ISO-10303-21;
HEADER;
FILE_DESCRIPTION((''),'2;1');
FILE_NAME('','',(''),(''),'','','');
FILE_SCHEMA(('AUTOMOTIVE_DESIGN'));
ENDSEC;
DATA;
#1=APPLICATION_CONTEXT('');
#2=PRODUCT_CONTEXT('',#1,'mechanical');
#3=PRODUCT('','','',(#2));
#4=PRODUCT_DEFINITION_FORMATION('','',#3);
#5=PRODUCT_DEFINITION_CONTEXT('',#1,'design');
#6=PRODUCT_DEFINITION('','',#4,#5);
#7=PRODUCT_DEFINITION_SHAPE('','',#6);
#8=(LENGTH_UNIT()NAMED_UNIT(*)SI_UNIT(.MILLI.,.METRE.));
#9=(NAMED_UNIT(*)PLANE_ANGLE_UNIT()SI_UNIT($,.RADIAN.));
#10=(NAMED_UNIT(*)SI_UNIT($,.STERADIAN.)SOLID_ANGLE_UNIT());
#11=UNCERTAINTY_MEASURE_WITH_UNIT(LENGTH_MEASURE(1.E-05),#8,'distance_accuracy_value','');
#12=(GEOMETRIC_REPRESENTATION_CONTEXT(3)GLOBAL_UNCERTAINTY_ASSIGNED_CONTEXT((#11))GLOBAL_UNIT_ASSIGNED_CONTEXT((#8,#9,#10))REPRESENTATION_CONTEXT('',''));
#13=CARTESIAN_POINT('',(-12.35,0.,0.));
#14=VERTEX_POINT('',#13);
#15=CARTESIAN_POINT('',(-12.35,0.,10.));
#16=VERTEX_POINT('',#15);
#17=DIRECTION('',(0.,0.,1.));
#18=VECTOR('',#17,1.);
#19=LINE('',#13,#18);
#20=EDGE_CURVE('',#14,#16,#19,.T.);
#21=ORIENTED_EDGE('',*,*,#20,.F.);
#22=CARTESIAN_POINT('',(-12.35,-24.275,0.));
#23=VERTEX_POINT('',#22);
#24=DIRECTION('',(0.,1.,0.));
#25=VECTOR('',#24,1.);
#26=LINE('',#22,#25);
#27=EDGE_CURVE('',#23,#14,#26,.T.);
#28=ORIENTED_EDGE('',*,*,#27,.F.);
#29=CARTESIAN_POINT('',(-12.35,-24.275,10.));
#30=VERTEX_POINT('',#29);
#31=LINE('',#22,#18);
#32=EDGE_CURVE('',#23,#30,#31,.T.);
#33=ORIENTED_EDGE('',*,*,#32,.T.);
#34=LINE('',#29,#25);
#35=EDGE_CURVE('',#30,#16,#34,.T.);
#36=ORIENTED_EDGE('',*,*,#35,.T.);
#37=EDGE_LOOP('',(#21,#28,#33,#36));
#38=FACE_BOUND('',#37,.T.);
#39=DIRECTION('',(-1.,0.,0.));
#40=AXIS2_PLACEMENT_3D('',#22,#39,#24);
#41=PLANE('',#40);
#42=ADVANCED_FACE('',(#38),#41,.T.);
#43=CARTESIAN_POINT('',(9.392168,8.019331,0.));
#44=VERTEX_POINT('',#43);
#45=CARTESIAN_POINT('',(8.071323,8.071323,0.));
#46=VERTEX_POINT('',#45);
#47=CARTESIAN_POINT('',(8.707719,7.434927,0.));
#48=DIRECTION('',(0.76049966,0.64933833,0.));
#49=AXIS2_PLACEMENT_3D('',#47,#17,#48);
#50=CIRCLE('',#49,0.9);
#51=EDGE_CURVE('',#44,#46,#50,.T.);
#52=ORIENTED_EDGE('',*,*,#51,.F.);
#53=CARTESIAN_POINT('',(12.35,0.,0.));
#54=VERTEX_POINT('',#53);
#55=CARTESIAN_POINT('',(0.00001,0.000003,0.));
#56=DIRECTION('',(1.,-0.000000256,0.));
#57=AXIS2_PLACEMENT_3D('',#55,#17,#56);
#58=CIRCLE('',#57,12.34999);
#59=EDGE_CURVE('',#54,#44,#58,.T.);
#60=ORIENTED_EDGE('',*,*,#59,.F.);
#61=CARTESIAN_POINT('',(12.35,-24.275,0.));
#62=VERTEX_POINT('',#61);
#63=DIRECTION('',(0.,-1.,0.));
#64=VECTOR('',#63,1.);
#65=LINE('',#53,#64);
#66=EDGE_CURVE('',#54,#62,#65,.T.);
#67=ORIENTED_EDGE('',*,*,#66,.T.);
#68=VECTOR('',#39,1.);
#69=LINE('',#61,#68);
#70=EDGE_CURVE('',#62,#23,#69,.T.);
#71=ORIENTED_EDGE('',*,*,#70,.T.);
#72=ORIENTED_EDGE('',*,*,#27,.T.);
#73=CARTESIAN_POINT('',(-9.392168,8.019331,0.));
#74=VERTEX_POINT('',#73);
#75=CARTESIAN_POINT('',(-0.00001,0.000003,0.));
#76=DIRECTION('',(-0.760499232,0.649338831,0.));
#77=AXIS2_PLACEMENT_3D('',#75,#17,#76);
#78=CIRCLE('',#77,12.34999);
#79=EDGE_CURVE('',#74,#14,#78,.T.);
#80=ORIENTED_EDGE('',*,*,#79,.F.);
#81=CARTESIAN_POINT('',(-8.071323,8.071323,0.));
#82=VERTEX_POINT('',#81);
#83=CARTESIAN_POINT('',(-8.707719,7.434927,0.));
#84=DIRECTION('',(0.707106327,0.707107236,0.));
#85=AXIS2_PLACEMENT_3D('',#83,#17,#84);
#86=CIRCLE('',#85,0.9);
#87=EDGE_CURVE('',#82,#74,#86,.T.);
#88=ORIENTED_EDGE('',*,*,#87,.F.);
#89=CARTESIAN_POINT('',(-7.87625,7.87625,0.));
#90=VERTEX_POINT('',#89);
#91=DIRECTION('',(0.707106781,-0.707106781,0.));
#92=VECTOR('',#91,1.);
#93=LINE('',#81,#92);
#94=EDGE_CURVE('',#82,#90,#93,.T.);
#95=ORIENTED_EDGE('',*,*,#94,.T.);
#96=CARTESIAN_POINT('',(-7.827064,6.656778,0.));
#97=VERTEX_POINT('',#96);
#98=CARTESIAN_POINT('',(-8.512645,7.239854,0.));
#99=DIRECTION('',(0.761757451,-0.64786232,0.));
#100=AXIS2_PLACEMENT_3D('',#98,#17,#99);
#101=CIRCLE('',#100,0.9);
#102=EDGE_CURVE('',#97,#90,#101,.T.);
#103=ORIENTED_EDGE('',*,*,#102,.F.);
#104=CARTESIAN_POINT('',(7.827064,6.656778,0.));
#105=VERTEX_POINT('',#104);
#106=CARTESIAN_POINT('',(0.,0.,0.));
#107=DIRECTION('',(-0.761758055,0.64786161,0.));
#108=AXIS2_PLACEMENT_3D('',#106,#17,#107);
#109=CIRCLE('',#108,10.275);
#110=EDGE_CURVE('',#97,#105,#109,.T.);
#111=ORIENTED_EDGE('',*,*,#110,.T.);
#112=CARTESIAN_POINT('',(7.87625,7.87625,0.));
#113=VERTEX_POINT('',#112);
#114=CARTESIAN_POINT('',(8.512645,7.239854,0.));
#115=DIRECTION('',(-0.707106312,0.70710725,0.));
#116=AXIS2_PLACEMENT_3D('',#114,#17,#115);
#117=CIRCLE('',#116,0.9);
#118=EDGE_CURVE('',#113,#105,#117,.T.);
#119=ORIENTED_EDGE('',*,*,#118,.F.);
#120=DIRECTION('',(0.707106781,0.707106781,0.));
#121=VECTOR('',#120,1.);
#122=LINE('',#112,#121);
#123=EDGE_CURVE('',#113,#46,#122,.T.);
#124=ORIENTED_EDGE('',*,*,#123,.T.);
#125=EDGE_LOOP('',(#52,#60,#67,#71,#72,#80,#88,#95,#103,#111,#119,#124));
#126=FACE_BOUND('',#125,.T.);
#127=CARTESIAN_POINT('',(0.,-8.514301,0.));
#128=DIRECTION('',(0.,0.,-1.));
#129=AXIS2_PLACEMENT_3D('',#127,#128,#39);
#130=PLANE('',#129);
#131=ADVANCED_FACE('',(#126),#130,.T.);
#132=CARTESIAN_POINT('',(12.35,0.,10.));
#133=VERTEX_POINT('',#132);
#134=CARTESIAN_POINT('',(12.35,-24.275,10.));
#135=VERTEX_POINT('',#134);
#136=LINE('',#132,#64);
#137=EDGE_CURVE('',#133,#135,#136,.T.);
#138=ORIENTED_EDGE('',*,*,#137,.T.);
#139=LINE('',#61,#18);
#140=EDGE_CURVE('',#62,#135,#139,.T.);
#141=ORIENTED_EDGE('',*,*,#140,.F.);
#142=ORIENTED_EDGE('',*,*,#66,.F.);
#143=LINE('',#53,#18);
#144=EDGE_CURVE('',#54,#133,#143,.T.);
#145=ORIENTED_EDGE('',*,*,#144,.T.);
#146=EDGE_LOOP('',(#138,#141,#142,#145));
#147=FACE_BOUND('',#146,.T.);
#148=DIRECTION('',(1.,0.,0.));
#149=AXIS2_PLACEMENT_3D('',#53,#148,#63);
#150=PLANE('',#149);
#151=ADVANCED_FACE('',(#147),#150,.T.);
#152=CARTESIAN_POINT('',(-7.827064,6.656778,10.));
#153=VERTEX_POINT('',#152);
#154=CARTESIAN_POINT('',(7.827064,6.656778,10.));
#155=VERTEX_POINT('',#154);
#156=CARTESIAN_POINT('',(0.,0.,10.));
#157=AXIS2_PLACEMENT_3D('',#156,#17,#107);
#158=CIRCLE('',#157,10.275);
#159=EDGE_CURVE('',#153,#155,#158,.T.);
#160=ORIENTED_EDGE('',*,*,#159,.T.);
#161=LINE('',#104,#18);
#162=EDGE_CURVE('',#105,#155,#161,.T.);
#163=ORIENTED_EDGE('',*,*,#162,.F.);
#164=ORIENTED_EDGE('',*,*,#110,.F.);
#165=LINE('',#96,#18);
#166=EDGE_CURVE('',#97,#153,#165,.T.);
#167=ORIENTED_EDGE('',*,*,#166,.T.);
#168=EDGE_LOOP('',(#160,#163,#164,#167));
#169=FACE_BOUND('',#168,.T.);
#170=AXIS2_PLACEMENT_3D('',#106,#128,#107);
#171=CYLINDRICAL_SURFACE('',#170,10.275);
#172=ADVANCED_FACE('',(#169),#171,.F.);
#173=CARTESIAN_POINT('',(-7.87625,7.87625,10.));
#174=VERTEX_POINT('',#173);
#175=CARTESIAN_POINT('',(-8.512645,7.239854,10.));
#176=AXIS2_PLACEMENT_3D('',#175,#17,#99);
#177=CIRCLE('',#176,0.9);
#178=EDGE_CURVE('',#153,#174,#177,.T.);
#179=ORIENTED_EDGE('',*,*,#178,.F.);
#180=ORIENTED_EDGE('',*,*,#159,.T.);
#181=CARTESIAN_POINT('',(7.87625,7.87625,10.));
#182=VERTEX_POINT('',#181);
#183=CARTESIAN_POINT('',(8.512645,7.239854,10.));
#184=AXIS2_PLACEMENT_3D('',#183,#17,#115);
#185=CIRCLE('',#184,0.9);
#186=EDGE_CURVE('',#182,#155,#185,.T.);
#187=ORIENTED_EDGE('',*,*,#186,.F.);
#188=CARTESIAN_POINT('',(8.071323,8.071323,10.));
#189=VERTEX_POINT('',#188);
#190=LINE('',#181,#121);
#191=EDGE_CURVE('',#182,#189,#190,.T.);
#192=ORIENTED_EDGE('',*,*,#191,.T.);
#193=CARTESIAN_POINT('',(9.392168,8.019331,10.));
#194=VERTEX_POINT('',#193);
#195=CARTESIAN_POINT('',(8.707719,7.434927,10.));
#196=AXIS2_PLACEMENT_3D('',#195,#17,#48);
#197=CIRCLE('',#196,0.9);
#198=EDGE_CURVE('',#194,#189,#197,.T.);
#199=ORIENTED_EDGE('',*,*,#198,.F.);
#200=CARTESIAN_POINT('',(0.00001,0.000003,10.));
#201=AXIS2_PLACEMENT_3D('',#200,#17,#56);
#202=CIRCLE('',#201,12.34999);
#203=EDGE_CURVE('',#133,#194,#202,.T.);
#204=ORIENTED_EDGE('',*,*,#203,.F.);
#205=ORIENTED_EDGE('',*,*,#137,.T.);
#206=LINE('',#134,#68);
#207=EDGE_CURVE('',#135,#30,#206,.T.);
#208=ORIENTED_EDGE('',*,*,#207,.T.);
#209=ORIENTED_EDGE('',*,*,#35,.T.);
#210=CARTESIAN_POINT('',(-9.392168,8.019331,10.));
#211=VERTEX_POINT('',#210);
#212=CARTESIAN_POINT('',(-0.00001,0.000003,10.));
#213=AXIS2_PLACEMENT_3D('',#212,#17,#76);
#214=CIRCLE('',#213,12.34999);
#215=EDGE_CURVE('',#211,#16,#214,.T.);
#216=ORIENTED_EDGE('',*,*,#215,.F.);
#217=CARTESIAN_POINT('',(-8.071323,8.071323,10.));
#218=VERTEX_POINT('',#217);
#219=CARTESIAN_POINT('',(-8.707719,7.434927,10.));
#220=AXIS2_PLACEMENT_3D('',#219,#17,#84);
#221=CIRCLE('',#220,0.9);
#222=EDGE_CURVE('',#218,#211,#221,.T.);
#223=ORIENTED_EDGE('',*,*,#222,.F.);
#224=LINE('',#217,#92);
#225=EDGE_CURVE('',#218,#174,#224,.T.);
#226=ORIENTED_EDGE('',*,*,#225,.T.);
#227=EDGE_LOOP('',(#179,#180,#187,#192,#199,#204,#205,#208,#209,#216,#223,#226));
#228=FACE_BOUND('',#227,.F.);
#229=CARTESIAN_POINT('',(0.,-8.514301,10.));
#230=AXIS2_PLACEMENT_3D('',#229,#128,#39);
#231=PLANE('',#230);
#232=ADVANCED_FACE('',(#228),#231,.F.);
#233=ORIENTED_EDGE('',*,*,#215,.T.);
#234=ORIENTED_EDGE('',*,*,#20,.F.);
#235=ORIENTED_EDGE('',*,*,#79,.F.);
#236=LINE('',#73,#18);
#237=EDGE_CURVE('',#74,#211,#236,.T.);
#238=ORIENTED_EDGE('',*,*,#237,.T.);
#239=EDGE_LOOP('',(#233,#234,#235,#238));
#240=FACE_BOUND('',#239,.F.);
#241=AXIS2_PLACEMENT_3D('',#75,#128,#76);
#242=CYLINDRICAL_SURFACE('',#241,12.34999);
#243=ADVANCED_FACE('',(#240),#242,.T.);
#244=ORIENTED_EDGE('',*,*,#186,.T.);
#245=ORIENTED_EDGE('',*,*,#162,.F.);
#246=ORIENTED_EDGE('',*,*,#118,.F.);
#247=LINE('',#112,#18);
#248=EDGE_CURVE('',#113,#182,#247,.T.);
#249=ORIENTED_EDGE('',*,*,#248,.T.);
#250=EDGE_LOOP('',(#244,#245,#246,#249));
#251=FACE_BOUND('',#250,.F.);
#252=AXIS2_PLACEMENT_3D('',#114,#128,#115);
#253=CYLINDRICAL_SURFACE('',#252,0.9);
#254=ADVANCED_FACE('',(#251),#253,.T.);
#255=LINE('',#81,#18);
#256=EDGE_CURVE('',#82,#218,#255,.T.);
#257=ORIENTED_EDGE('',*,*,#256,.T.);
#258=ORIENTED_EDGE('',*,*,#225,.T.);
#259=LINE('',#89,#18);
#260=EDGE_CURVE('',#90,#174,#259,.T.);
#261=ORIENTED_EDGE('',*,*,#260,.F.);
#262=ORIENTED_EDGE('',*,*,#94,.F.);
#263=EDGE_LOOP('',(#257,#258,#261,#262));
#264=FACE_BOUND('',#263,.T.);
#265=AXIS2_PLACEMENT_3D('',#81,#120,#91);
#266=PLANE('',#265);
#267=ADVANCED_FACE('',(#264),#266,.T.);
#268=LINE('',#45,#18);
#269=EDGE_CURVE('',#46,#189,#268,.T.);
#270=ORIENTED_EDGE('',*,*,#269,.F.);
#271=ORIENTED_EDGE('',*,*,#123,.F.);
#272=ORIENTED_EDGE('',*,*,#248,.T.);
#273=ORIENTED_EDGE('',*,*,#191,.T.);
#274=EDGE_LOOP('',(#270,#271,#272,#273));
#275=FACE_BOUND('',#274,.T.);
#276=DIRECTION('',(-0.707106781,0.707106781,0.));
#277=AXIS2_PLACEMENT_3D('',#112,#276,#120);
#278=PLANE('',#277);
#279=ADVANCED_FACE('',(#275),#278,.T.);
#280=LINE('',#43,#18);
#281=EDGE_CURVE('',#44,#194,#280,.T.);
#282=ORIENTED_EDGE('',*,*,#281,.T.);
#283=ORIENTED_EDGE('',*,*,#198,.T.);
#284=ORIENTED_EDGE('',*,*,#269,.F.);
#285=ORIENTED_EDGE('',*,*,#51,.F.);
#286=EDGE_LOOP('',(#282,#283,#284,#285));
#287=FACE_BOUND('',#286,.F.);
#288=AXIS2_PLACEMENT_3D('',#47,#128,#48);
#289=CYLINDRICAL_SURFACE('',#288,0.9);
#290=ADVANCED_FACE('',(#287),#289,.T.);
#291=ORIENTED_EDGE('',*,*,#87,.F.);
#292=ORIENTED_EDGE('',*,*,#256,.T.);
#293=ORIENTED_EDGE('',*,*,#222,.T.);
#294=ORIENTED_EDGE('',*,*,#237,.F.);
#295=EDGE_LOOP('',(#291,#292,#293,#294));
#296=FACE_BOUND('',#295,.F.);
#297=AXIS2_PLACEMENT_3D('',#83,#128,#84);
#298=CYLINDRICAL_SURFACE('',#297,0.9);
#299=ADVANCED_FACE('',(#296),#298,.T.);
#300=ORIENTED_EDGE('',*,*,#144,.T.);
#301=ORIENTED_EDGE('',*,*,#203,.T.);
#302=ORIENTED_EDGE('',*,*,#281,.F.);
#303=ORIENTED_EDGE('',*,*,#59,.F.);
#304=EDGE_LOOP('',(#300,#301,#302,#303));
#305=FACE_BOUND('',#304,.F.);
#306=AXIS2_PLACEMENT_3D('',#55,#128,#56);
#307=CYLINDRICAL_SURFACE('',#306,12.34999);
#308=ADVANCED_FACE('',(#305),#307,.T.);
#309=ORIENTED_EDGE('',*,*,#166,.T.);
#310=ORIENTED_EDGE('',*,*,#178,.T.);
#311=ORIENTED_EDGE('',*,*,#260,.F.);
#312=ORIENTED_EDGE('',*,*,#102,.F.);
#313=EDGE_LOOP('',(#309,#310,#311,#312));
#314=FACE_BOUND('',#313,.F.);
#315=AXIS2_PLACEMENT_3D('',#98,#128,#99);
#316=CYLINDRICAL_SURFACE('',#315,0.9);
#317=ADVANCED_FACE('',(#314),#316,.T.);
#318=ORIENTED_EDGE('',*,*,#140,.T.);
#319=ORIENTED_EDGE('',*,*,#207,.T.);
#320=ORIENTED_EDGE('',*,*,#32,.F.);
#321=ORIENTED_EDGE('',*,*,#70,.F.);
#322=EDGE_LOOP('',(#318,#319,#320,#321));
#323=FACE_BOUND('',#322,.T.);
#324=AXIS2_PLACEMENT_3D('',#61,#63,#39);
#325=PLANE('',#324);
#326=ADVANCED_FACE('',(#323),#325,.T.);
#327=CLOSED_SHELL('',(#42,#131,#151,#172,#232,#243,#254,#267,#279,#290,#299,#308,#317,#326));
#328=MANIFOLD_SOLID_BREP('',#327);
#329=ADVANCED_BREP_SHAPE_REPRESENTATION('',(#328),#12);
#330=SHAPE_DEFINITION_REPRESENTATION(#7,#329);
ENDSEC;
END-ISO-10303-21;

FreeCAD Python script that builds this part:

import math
import FreeCAD as App
import Part
import Sketcher

doc = App.newDocument("Part")
body = doc.addObject("PartDesign::Body", "Body")

# Sketch on XY plane
sketch1 = doc.addObject("Sketcher::SketchObject", "Sketch")
body.addObject(sketch1)
sketch1.AttachmentSupport = (doc.XY_Plane, [""])
sketch1.MapMode = "FlatFace"
sketch1.addGeometry([
    Part.ArcOfCircle(Part.Circle(App.Vector(0, 0, 0), App.Vector(0, 0, 1), 10.275), math.radians(139.61943), math.radians(400.38057)),  # 0
    Part.ArcOfCircle(Part.Circle(App.Vector(-8.512645, 7.239854, 0), App.Vector(0, 0, 1), 0.9), math.radians(-40.380623), math.radians(45.000038)),  # 1
    Part.LineSegment(App.Vector(-7.87625, 7.87625, 0), App.Vector(-8.071323, 8.071323, 0)),  # 2
    Part.ArcOfCircle(Part.Circle(App.Vector(-8.707719, 7.434927, 0), App.Vector(0, 0, 1), 0.9), math.radians(45.000037), math.radians(139.508267)),  # 3
    Part.ArcOfCircle(Part.Circle(App.Vector(-0.00001, 0.000003, 0), App.Vector(0, 0, 1), 12.34999), math.radians(139.508229), math.radians(180.000015)),  # 4
    Part.LineSegment(App.Vector(-12.35, 0, 0), App.Vector(-12.35, -24.275, 0)),  # 5
    Part.LineSegment(App.Vector(-12.35, -24.275, 0), App.Vector(12.35, -24.275, 0)),  # 6
    Part.LineSegment(App.Vector(12.35, -24.275, 0), App.Vector(12.35, 0, 0)),  # 7
    Part.ArcOfCircle(Part.Circle(App.Vector(0.00001, 0.000003, 0), App.Vector(0, 0, 1), 12.34999), math.radians(-0.000015), math.radians(40.491771)),  # 8
    Part.ArcOfCircle(Part.Circle(App.Vector(8.707719, 7.434927, 0), App.Vector(0, 0, 1), 0.9), math.radians(40.491733), math.radians(134.999963)),  # 9
    Part.LineSegment(App.Vector(8.071323, 8.071323, 0), App.Vector(7.87625, 7.87625, 0)),  # 10
    Part.ArcOfCircle(Part.Circle(App.Vector(8.512645, 7.239854, 0), App.Vector(0, 0, 1), 0.9), math.radians(134.999962), math.radians(220.380623)),  # 11
], False)
sketch1.addConstraint([
    Sketcher.Constraint("Tangent", 0, 1, 1, 1),
    Sketcher.Constraint("Tangent", 1, 2, 2, 1),
    Sketcher.Constraint("Tangent", 2, 2, 3, 1),
    Sketcher.Constraint("Tangent", 3, 2, 4, 1),
    Sketcher.Constraint("Tangent", 4, 2, 5, 1),
    Sketcher.Constraint("Coincident", 5, 2, 6, 1),
    Sketcher.Constraint("Coincident", 6, 2, 7, 1),
    Sketcher.Constraint("Tangent", 7, 2, 8, 1),
    Sketcher.Constraint("Tangent", 8, 2, 9, 1),
    Sketcher.Constraint("Tangent", 9, 2, 10, 1),
    Sketcher.Constraint("Tangent", 10, 2, 11, 1),
    Sketcher.Constraint("Tangent", 11, 2, 0, 2),
    Sketcher.Constraint("Vertical", 5),
    Sketcher.Constraint("Horizontal", 6),
    Sketcher.Constraint("Vertical", 7),
    Sketcher.Constraint("Coincident", 0, 3, -1, 1),
    Sketcher.Constraint("Equal", 1, 3),
    Sketcher.Constraint("Equal", 4, 8),
    Sketcher.Constraint("Equal", 3, 9),
    Sketcher.Constraint("Equal", 9, 11),
    Sketcher.Constraint("Symmetric", 4, 3, 8, 3, -1, 1),
    Sketcher.Constraint("Symmetric", 3, 3, 9, 3, -2),
    Sketcher.Constraint("Perpendicular", 2, 10),
    Sketcher.Constraint("Horizontal", 1, 3, 11, 3),
    Sketcher.Constraint("Radius", 1, 0.9),
    Sketcher.Constraint("DistanceX", 6, 1, 6, 2, 24.7),
    Sketcher.Constraint("Radius", 0, 10.275),
    Sketcher.Constraint("DistanceY", 5, 2, 5, 1, 24.275),
    Sketcher.Constraint("Radius", 4, 12.34999),
    Sketcher.Constraint("DistanceX", 3, 3, -1, 1, 8.707719),
])
pad1 = doc.addObject("PartDesign::Pad", "Pad")
body.addObject(pad1)
pad1.Profile = sketch1
pad1.Length = 10

doc.recompute()
